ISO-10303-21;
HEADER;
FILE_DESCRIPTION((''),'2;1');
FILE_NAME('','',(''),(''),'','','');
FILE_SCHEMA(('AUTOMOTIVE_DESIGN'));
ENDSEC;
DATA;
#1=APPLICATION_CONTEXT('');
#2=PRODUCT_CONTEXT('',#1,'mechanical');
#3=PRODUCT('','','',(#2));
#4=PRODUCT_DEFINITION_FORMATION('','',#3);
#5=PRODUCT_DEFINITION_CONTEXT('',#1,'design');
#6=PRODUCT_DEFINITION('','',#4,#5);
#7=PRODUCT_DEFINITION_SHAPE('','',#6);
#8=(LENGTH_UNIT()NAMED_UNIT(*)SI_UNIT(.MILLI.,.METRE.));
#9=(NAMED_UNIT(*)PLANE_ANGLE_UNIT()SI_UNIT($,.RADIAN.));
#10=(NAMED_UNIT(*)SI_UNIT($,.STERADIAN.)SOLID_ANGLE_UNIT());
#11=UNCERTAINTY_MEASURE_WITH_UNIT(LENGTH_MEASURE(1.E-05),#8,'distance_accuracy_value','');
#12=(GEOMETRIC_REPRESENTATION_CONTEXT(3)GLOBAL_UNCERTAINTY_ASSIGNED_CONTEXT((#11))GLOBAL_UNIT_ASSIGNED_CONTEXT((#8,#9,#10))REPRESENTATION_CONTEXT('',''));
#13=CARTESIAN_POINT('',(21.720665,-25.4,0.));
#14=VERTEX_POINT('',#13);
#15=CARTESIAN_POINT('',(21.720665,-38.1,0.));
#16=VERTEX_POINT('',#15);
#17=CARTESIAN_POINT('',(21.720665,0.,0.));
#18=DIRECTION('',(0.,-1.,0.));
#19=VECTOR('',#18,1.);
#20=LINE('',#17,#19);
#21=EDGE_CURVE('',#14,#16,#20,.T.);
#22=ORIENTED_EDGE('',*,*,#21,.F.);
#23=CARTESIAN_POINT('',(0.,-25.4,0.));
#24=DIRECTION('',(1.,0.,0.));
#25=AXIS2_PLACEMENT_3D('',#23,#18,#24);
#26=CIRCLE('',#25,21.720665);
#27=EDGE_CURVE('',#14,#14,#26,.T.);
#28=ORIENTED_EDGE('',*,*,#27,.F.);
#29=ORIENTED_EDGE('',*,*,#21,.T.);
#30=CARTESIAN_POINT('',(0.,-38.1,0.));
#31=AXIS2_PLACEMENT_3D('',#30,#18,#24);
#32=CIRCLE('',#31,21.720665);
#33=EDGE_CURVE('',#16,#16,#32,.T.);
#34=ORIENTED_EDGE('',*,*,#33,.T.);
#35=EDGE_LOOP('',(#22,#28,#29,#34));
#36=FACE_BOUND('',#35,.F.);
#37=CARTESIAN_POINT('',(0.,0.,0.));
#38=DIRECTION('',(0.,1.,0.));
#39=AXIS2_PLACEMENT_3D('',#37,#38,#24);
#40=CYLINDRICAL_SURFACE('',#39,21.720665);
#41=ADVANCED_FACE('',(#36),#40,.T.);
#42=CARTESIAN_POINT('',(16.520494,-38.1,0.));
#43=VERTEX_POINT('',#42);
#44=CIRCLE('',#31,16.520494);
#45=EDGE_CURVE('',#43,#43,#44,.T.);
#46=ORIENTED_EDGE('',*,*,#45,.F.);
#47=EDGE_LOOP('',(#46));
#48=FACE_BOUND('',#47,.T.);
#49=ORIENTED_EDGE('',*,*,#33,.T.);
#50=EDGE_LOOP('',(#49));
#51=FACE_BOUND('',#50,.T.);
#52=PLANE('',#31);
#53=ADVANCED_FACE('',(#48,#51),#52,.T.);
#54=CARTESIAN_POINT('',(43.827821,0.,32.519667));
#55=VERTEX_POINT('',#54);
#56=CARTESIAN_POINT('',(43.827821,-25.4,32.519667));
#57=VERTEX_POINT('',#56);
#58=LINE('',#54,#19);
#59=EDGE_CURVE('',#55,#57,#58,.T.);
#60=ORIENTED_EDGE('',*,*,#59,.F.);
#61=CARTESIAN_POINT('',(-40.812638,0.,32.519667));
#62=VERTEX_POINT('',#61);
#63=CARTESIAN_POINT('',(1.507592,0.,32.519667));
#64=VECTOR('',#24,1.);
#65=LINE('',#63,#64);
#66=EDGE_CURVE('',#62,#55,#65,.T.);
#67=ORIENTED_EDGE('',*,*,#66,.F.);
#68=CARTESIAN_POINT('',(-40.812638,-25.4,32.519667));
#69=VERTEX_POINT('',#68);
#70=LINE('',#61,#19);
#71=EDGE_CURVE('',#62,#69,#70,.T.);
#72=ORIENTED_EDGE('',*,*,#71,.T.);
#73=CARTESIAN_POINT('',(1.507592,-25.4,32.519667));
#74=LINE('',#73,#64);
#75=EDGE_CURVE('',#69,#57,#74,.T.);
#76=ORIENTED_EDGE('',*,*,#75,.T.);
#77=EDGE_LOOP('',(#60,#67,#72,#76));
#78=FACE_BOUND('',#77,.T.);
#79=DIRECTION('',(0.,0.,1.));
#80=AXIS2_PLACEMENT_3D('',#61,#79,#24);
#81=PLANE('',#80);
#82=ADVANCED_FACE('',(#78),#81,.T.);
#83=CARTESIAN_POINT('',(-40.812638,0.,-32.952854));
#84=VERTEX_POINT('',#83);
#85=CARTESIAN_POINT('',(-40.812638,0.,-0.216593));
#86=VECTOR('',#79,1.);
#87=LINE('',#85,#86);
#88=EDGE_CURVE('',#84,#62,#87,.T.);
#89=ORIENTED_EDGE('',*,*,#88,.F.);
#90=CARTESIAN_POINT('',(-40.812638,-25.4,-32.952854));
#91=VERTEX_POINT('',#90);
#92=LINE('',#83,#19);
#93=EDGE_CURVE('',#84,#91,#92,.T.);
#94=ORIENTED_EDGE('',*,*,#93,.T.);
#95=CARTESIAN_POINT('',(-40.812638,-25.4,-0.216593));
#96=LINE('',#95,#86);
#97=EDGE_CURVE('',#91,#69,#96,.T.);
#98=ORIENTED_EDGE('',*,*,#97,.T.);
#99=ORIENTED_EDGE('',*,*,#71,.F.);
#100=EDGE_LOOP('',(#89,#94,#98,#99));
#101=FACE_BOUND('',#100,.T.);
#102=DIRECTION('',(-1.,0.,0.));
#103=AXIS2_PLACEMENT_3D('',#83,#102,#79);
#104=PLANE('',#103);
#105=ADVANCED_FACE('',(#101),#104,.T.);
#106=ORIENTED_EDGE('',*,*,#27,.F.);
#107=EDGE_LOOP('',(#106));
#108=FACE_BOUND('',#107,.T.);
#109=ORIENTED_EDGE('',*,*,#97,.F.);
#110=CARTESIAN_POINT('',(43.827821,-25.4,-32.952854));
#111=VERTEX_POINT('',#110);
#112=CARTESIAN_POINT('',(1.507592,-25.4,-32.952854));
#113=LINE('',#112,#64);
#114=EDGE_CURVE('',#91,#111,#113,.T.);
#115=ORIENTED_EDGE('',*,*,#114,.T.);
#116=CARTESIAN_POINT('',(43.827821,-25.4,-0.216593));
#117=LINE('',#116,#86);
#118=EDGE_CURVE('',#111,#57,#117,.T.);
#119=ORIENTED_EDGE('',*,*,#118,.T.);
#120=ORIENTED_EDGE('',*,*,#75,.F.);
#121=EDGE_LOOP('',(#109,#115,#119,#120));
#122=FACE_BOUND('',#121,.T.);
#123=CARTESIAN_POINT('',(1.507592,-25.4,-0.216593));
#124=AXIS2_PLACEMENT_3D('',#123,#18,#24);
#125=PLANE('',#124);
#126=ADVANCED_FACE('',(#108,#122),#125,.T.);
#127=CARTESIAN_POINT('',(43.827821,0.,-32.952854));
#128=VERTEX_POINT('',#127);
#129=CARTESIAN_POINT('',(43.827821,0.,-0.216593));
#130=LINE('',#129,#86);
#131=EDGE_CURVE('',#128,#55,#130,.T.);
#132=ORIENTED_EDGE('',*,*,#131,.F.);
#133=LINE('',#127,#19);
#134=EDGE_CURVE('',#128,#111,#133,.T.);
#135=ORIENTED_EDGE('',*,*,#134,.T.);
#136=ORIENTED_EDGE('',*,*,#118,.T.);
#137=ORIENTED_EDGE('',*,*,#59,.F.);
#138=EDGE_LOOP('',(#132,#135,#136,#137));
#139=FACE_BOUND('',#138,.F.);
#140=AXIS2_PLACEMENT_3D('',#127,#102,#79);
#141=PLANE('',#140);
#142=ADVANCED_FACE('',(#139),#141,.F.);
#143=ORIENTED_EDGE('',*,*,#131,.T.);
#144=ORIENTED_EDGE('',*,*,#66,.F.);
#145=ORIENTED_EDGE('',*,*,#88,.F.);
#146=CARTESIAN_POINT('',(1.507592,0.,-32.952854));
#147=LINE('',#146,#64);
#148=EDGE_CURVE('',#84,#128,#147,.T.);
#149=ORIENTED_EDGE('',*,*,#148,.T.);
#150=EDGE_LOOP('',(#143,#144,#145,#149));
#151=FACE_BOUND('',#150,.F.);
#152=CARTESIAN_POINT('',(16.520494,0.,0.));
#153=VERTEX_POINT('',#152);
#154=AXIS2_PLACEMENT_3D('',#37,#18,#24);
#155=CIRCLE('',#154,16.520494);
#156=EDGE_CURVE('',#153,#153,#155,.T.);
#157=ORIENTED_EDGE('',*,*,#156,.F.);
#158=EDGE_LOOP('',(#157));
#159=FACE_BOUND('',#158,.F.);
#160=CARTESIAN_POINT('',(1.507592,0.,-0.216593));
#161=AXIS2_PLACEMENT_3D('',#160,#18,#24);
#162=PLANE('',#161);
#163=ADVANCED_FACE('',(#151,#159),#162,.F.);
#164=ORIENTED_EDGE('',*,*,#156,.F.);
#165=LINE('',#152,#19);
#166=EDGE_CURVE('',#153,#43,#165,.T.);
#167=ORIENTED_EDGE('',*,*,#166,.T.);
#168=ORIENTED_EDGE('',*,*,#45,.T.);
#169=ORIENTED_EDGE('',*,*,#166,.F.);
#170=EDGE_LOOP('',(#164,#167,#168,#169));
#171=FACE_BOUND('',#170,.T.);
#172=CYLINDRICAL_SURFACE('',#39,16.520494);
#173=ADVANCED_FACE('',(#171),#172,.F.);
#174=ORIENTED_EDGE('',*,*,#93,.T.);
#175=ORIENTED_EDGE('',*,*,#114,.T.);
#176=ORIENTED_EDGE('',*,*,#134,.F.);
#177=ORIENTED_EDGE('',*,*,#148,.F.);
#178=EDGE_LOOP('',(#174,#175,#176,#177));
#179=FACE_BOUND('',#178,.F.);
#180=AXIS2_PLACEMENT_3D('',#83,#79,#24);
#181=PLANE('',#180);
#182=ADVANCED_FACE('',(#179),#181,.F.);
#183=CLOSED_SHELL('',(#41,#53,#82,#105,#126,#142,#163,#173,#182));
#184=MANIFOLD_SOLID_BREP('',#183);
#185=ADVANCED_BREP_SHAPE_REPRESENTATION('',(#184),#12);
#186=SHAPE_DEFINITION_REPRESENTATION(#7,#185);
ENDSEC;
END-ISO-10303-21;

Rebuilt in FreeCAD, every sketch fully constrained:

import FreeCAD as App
import Part
import Sketcher
from FreeCAD import Vector
Q = App.Units.Quantity

doc = App.newDocument("Part")
body = doc.addObject("PartDesign::Body", "Body")

# Sketch on XZ plane
sketch1 = body.newObject("Sketcher::SketchObject", "Sketch")
sketch1.AttachmentSupport = (doc.getObject("XZ_Plane"), [""])
sketch1.MapMode = "FlatFace"
sketch1.addGeometry([
    Part.Circle(Vector(0, 0, 0), Vector(0, 0, 1), 22),
    Part.Circle(Vector(0, 0, 0), Vector(0, 0, 1), 17),
], False)
sketch1.addConstraint([
    Sketcher.Constraint("Coincident", 0, 3, -1, 1),
    Sketcher.Constraint("Coincident", 1, 3, -1, 1),
    Sketcher.Constraint("Diameter", 0, 43.44133),
    Sketcher.Constraint("Diameter", 1, 33.040988),
])
pad1 = body.newObject("PartDesign::Pad", "Pad")
pad1.Profile = sketch1
pad1.Length = Q("1.5 in")

# Sketch on XZ plane
sketch2 = body.newObject("Sketcher::SketchObject", "Sketch001")
sketch2.AttachmentSupport = (doc.getObject("XZ_Plane"), [""])
sketch2.MapMode = "FlatFace"
sketch2.addGeometry([
    Part.LineSegment(Vector(-41, 33, 0), Vector(-41, -33, 0)),  # 0
    Part.LineSegment(Vector(-41, -33, 0), Vector(44, -33, 0)),  # 1
    Part.LineSegment(Vector(44, -33, 0), Vector(44, 33, 0)),  # 2
    Part.LineSegment(Vector(44, 33, 0), Vector(-41, 33, 0)),  # 3
    Part.Circle(Vector(0, 0, 0), Vector(0, 0, 1), 22),  # 4
], False)
sketch2.addConstraint([
    Sketcher.Constraint("Coincident", 0, 2, 1, 1),
    Sketcher.Constraint("Coincident", 1, 2, 2, 1),
    Sketcher.Constraint("Coincident", 2, 2, 3, 1),
    Sketcher.Constraint("Coincident", 3, 2, 0, 1),
    Sketcher.Constraint("Vertical", 0),
    Sketcher.Constraint("Horizontal", 1),
    Sketcher.Constraint("Vertical", 2),
    Sketcher.Constraint("Horizontal", 3),
    Sketcher.Constraint("Coincident", 4, 3, -1, 1),
    Sketcher.Constraint("Diameter", 4, 43.44133),
    Sketcher.Constraint("DistanceX", 1, 1, 1, 2, 84.640459),
    Sketcher.Constraint("DistanceY", 0, 2, 0, 1, 65.472521),
    Sketcher.Constraint("DistanceX", -1, 1, 1, 2, 43.827821),
    Sketcher.Constraint("DistanceY", 0, 2, -1, 1, 32.952854),
])
pad2 = body.newObject("PartDesign::Pad", "Pad001")
pad2.Profile = sketch2
pad2.Length = Q("1 in")

doc.recompute()
